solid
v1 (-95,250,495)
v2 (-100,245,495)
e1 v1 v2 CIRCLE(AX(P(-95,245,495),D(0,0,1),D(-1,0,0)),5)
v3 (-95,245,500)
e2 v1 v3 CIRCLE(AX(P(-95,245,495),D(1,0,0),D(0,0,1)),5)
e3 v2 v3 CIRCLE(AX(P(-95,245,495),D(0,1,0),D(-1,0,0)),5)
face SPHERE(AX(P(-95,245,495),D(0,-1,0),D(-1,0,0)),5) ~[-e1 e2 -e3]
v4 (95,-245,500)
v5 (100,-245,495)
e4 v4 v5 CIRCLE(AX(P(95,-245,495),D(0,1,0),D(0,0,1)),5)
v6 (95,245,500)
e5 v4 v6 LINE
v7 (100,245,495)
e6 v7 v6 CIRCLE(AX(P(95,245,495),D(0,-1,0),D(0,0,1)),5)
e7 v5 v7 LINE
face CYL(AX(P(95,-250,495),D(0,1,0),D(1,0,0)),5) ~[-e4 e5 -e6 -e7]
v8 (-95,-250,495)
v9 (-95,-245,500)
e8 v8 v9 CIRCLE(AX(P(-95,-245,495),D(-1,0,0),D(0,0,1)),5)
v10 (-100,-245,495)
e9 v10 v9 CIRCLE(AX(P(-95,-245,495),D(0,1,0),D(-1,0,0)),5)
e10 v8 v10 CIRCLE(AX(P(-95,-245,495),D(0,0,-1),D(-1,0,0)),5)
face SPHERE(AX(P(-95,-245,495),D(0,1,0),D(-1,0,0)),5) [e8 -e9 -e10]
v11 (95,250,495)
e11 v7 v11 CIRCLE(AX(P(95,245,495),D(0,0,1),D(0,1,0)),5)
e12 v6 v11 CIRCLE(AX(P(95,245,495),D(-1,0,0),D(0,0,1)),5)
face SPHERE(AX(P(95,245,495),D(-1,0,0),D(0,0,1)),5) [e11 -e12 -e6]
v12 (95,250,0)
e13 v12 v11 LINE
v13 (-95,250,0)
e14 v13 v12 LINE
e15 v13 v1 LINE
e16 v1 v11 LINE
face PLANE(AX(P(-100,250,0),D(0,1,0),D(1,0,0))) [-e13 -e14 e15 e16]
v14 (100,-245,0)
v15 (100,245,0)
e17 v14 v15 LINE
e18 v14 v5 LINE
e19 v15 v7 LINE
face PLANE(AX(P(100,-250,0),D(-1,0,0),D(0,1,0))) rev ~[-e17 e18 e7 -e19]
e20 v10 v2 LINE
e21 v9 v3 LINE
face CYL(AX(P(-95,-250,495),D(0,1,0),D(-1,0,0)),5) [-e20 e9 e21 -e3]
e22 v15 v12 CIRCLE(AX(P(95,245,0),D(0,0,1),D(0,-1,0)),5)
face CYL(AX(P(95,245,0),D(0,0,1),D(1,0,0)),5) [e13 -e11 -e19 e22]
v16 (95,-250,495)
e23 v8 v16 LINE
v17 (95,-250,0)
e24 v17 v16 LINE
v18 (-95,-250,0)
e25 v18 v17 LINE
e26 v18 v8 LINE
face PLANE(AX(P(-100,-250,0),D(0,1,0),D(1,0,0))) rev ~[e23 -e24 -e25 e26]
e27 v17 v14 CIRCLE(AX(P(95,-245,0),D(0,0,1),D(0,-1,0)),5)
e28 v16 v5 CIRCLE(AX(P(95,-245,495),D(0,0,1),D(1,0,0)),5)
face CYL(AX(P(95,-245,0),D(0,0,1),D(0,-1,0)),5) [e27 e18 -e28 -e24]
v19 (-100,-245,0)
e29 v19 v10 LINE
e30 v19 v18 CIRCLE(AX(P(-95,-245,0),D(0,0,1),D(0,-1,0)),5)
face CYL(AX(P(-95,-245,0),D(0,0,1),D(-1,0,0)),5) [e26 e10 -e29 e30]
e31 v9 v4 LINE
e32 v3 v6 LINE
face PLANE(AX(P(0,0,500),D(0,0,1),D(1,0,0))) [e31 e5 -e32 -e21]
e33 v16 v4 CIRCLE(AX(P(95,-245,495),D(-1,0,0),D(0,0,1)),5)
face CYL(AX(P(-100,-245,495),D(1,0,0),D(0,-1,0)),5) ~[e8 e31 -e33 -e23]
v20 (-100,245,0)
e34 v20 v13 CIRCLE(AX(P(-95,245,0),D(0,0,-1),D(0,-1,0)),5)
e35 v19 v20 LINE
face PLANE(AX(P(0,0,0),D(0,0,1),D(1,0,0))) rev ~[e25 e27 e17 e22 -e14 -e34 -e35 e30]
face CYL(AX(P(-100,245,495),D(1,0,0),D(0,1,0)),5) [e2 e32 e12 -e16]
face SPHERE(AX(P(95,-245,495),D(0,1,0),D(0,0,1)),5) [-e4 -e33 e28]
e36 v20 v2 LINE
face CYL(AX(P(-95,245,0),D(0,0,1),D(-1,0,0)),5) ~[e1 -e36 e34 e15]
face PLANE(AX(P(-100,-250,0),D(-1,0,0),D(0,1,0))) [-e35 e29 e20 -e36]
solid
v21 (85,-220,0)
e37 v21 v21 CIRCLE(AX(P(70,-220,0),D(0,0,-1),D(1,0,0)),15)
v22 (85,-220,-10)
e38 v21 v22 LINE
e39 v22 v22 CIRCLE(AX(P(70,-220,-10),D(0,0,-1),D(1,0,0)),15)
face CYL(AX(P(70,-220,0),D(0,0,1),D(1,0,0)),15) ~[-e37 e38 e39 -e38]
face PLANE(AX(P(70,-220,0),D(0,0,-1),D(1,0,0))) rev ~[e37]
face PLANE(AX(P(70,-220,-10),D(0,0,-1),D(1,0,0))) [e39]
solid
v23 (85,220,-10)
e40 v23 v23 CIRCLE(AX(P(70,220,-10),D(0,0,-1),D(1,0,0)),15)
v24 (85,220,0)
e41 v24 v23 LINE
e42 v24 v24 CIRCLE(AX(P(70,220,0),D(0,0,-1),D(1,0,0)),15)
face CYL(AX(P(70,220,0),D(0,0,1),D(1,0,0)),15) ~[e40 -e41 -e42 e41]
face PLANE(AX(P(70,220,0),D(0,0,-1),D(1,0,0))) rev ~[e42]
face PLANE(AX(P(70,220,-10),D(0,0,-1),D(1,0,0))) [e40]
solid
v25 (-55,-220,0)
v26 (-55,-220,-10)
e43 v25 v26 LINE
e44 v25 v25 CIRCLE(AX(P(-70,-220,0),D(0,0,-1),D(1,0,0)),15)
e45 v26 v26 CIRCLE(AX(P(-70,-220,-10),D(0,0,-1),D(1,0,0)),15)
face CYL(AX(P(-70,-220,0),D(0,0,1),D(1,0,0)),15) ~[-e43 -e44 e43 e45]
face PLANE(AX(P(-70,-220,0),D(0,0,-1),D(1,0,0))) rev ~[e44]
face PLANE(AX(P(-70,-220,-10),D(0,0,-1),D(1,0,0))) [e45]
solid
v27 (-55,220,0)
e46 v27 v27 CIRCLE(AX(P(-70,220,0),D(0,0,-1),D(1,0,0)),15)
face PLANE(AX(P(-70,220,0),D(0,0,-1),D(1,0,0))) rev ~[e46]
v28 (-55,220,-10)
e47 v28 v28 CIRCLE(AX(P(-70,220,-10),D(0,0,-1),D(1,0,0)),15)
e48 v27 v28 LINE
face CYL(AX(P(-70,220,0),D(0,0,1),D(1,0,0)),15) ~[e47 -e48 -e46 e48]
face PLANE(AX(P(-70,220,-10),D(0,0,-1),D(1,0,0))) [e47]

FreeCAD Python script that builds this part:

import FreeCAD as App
import Part
import Sketcher
from FreeCAD import Vector
Q = App.Units.Quantity


def edges_at(feature, points):
    """Names of the edges that pass closest to the given points."""
    edges = feature.Shape.Edges
    near = lambda p: min(range(len(edges)), key=lambda i: edges[i].distToShape(Part.Vertex(*p))[0])
    return sorted({f"Edge{near(p) + 1}" for p in points})


def add_polygon(sketch, points):
    """Adds a closed chain of lines whose ends are joined by coincident constraints."""
    first, n = sketch.GeometryCount, len(points)
    for a, b in zip(points, points[1:] + points[:1]):
        sketch.addGeometry(Part.LineSegment(App.Vector(*a, 0), App.Vector(*b, 0)), False)
    for i in range(n):
        sketch.addConstraint(Sketcher.Constraint("Coincident", first + i, 2, first + (i + 1) % n, 1))

doc = App.newDocument("Part")
body = doc.addObject("PartDesign::Body", "Body")

# Sketch on XY plane
sketch1 = body.newObject("Sketcher::SketchObject", "Sketch")
sketch1.AttachmentSupport = (doc.getObject("XY_Plane"), [""])
sketch1.MapMode = "FlatFace"
add_polygon(sketch1, [(-100, 250), (-100, -250), (100, -250), (100, 250)])  # lines 0-3
sketch1.addConstraint(Sketcher.Constraint("Vertical", 0))
sketch1.addConstraint(Sketcher.Constraint("Horizontal", 1))
sketch1.addConstraint(Sketcher.Constraint("Vertical", 2))
sketch1.addConstraint(Sketcher.Constraint("Horizontal", 3))
sketch1.addConstraint(Sketcher.Constraint("Symmetric", 0, 2, 2, 2, -1, 1))
sketch1.addConstraint(Sketcher.Constraint("DistanceX", 1, 1, 1, 2, Q("200 mm")))
sketch1.addConstraint(Sketcher.Constraint("DistanceY", 0, 2, 0, 1, Q("500 mm")))
pad1 = body.newObject("PartDesign::Pad", "Pad")
pad1.Profile = sketch1
pad1.Length = 500
doc.recompute()

fillet = body.newObject("PartDesign::Fillet", "Fillet")
fillet.Base = (pad1, edges_at(pad1, [
    (-100, 0, 500),
    (-100, -250, 250),
    (-100, 250, 250),
    (0, 250, 500),
    (100, 0, 500),
    (0, -250, 500),
    (100, -250, 250),
    (100, 250, 250),
]))
fillet.Radius = 5
body2 = doc.addObject("PartDesign::Body", "Body001")
body2.AllowCompound = True

# Sketch on XY plane
sketch2 = body2.newObject("Sketcher::SketchObject", "Sketch001")
sketch2.AttachmentSupport = (doc.getObject("XY_Plane001"), [""])
sketch2.MapMode = "FlatFace"
sketch2.addGeometry(Part.Circle(Vector(-70, -220, 0), Vector(0, 0, 1), 15), False)
sketch2.addGeometry(Part.Circle(Vector(70, -220, 0), Vector(0, 0, 1), 15), False)
sketch2.addGeometry(Part.Circle(Vector(-70, 220, 0), Vector(0, 0, 1), 15), False)
sketch2.addGeometry(Part.Circle(Vector(70, 220, 0), Vector(0, 0, 1), 15), False)
sketch2.addConstraint(Sketcher.Constraint("Equal", 0, 1))
sketch2.addConstraint(Sketcher.Constraint("Equal", 1, 2))
sketch2.addConstraint(Sketcher.Constraint("Equal", 2, 3))
sketch2.addConstraint(Sketcher.Constraint("Symmetric", 1, 3, 2, 3, -1, 1))
sketch2.addConstraint(Sketcher.Constraint("Symmetric", 0, 3, 3, 3, -1, 1))
sketch2.addConstraint(Sketcher.Constraint("Symmetric", 0, 3, 1, 3, -2))
sketch2.addConstraint(Sketcher.Constraint("Diameter", 0, Q("30 mm")))
sketch2.addConstraint(Sketcher.Constraint("DistanceX", 0, 3, -1, 1, Q("70 mm")))
sketch2.addConstraint(Sketcher.Constraint("DistanceY", 0, 3, -1, 1, Q("220 mm")))
pad2 = body2.newObject("PartDesign::Pad", "Pad001")
pad2.Profile = sketch2
pad2.Length = 10
pad2.Reversed = True

doc.recompute()
